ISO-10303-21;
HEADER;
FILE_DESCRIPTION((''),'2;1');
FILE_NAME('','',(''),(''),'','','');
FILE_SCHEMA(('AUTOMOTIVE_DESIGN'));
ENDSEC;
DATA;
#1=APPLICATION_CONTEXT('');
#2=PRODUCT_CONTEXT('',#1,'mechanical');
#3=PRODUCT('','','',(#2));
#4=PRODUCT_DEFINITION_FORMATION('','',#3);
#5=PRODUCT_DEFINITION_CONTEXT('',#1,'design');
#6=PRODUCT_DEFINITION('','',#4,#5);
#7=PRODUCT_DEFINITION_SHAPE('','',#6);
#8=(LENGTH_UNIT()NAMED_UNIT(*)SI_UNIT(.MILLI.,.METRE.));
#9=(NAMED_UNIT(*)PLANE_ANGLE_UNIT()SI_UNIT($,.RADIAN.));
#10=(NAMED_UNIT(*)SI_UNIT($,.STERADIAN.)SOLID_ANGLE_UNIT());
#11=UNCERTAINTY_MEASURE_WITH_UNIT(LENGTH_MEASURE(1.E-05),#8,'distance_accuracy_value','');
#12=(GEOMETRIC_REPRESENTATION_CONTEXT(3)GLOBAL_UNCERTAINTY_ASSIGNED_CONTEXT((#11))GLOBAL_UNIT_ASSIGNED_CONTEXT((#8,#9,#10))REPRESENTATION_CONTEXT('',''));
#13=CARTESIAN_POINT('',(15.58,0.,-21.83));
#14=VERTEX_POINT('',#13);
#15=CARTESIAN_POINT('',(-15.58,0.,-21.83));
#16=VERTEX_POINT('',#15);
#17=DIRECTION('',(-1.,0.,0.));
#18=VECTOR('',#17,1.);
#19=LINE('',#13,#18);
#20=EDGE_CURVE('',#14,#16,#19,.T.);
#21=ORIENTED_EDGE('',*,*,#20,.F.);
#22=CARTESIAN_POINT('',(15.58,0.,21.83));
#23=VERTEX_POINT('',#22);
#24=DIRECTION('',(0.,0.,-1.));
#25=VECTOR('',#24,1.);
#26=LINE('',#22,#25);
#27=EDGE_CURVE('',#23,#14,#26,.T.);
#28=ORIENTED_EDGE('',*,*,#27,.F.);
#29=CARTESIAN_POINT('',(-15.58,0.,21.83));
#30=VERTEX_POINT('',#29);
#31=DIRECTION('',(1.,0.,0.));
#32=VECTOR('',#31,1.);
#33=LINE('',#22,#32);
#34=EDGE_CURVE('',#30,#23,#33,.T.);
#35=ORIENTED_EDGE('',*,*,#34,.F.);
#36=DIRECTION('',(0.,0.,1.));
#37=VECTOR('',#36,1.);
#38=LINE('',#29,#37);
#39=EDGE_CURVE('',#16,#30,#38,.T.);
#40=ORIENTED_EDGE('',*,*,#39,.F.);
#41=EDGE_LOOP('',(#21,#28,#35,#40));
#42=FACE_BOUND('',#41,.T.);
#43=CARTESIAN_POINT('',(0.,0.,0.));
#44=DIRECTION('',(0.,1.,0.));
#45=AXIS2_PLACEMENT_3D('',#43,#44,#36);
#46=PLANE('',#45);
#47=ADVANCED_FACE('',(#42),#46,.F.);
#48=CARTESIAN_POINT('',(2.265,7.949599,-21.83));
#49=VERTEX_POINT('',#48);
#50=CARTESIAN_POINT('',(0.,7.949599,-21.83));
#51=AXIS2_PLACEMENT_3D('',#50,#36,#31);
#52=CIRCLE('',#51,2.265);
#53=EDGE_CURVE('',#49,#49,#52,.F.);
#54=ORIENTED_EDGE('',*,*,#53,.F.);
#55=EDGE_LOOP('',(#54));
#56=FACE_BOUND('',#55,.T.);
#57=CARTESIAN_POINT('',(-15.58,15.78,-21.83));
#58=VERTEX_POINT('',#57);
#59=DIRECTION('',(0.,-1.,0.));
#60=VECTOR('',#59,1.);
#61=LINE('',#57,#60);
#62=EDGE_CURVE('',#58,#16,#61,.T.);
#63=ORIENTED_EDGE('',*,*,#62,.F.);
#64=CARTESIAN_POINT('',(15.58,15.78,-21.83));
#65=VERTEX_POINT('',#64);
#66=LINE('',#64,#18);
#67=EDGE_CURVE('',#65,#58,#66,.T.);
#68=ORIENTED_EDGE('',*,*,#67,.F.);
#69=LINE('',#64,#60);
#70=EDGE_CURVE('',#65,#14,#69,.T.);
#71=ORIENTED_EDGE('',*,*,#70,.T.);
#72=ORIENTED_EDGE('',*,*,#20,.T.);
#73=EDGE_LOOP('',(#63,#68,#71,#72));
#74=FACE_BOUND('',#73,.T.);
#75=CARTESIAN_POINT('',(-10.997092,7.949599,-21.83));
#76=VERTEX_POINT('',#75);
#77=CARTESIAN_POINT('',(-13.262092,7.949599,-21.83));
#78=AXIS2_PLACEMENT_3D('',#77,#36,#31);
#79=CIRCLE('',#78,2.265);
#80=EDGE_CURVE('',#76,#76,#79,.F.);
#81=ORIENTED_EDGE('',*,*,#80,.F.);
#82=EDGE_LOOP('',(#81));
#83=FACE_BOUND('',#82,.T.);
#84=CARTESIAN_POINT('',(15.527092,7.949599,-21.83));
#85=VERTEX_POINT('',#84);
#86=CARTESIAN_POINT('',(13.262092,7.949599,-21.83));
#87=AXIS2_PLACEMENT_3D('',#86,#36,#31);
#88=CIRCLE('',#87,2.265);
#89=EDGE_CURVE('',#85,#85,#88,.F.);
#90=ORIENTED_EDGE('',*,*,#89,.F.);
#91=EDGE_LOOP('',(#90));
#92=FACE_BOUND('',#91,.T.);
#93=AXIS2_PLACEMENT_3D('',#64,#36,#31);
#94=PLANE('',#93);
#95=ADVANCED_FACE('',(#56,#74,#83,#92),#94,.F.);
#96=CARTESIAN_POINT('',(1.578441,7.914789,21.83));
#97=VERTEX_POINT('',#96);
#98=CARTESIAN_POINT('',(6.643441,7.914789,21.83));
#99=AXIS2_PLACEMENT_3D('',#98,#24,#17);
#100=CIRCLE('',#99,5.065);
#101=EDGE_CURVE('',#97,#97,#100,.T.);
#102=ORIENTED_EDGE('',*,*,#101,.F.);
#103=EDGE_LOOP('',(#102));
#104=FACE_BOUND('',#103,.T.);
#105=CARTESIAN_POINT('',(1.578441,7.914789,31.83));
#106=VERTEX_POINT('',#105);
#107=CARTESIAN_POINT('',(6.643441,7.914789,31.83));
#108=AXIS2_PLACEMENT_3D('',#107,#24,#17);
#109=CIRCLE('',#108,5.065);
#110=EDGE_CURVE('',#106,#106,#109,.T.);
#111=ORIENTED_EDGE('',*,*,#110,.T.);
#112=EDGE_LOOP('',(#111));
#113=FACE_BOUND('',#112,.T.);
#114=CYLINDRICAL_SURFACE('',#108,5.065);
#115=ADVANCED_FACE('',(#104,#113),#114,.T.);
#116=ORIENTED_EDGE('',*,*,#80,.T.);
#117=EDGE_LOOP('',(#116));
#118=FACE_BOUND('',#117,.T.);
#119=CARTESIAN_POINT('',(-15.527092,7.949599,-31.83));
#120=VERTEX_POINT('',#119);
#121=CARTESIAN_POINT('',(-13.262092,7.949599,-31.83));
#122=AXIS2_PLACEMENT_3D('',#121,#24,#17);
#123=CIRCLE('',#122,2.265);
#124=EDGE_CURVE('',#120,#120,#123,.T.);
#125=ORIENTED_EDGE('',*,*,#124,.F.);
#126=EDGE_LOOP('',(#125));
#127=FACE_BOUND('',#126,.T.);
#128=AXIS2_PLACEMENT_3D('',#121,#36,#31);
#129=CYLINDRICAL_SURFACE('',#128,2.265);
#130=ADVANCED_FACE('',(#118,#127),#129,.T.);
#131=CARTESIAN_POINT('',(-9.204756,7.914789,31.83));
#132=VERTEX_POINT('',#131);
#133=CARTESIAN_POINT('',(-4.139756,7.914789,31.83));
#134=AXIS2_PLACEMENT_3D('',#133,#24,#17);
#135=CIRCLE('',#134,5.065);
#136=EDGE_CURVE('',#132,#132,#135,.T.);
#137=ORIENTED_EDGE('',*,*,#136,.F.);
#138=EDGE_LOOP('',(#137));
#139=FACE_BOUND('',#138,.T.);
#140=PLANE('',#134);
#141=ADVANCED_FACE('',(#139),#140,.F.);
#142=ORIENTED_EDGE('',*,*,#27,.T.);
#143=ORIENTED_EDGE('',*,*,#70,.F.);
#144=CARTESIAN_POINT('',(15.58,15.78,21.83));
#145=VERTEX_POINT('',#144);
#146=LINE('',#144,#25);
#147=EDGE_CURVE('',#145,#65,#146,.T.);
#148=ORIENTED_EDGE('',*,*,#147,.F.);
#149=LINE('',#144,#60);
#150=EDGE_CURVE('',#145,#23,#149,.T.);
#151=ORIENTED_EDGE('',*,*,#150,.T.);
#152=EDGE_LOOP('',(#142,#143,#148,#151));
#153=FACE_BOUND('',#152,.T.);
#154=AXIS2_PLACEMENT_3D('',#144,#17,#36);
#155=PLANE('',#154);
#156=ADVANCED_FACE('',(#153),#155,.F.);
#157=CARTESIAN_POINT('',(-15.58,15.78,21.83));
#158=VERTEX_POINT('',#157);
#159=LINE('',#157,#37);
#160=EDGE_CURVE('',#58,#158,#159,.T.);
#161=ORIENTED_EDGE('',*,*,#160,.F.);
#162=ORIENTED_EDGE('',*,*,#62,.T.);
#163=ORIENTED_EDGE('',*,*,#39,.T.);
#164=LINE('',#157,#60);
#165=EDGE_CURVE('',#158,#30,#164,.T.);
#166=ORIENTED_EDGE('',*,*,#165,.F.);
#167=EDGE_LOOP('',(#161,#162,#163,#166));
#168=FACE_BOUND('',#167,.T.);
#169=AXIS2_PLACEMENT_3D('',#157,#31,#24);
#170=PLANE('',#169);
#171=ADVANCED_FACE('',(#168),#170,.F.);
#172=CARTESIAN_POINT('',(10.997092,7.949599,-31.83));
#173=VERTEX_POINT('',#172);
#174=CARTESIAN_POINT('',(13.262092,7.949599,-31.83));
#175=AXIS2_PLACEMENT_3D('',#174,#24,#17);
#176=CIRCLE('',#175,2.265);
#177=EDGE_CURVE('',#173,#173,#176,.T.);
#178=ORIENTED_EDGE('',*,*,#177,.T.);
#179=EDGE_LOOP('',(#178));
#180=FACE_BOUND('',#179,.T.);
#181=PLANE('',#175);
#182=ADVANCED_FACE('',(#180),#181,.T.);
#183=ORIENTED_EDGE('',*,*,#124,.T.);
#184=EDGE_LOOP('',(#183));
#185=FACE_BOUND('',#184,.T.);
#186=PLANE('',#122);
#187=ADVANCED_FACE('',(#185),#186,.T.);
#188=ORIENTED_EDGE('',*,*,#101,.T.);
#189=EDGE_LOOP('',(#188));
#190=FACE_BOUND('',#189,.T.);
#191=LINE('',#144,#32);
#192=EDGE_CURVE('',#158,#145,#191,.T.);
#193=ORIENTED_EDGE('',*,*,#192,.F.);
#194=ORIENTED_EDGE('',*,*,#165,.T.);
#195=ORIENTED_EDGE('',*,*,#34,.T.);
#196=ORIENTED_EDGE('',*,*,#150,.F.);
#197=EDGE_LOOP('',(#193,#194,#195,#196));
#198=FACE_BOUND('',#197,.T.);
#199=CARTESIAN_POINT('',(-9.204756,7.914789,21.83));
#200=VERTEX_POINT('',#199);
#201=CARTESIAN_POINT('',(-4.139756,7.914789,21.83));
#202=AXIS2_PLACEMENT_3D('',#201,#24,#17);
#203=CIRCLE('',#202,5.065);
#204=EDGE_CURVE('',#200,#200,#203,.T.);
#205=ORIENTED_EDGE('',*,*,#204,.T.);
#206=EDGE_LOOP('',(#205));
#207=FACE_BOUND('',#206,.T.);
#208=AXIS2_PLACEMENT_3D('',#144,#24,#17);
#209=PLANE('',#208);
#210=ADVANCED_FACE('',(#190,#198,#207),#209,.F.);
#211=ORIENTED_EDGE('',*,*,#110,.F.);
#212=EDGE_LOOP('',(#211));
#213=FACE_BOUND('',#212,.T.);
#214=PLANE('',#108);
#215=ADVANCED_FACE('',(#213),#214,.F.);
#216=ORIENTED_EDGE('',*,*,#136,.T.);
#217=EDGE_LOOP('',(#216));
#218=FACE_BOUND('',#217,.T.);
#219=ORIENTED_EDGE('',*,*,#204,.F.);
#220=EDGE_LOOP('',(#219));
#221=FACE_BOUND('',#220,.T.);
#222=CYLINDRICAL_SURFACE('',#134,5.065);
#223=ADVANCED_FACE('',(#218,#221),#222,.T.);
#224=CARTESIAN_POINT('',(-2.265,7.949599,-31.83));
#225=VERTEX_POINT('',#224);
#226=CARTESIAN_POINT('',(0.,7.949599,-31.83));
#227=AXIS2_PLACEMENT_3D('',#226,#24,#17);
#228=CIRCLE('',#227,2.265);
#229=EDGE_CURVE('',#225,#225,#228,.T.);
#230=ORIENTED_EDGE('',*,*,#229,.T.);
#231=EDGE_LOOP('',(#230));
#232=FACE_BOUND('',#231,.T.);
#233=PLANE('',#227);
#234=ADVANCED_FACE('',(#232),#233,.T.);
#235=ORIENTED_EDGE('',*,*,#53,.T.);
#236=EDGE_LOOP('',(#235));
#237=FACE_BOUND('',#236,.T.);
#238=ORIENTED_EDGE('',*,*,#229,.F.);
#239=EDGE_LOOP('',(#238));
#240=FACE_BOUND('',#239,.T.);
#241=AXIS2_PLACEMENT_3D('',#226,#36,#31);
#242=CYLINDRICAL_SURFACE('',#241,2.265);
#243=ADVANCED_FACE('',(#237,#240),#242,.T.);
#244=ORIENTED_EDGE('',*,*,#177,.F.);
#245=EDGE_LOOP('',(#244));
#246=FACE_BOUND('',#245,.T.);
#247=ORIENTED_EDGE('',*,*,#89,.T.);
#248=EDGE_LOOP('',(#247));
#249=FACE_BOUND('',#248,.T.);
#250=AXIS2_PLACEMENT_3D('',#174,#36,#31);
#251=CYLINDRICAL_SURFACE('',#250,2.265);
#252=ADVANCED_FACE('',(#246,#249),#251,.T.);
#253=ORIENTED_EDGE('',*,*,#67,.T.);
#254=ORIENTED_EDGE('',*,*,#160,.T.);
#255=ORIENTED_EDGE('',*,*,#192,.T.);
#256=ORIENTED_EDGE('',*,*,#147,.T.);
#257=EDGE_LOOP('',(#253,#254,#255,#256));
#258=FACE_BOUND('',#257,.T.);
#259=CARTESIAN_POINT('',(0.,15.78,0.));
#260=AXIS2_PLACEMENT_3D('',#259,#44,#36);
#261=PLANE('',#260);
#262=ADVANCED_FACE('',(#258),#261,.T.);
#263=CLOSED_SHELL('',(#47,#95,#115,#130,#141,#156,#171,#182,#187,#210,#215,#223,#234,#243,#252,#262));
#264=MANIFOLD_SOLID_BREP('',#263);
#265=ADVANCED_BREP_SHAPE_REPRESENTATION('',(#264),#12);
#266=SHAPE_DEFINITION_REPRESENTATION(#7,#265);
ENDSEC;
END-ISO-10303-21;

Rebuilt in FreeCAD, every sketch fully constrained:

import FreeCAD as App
import Part
import Sketcher

V = App.Vector

doc = App.newDocument("Part")
params = doc.addObject("Spreadsheet::Sheet", "Params")
for row, (alias, value) in enumerate([
    ("sketch1_width", "31.16 mm"),
    ("sketch1_height", "43.66 mm"),
    ("pad1_length", "15.78 mm"),
    ("sketch2_diameter", "10.13 mm"),
    ("pad2_length", "10 mm"),
    ("sketch3_diameter", "4.53 mm"),
    ("pad3_length", "10 mm"),
], start=1):
    params.set(f"A{row}", alias)
    params.set(f"B{row}", "=" + value)
    params.setAlias(f"B{row}", alias)

body = doc.addObject("PartDesign::Body", "Body")

# Sketch on XZ plane
sketch1 = body.newObject("Sketcher::SketchObject", "Sketch")
sketch1.AttachmentSupport = (doc.getObject("XZ_Plane"), [""])
sketch1.MapMode = "FlatFace"
sketch1.addGeometry([
    Part.LineSegment(V(-16, -22, 0), V(-16, 22, 0)),
    Part.LineSegment(V(-16, 22, 0), V(16, 22, 0)),
    Part.LineSegment(V(16, 22, 0), V(16, -22, 0)),
    Part.LineSegment(V(16, -22, 0), V(-16, -22, 0)),
], False)
sketch1.addConstraint([
    Sketcher.Constraint("Coincident", 0, 2, 1, 1),
    Sketcher.Constraint("Coincident", 1, 2, 2, 1),
    Sketcher.Constraint("Coincident", 2, 2, 3, 1),
    Sketcher.Constraint("Coincident", 3, 2, 0, 1),
    Sketcher.Constraint("Vertical", 0),
    Sketcher.Constraint("Horizontal", 1),
    Sketcher.Constraint("Vertical", 2),
    Sketcher.Constraint("Horizontal", 3),
    Sketcher.Constraint("Symmetric", 0, 2, 2, 2, -1, 1),
    Sketcher.Constraint("DistanceX", 1, 1, 1, 2, 31.16),
    Sketcher.Constraint("DistanceY", 0, 1, 0, 2, 43.66),
])
sketch1.setExpression("Constraints[9]", "Params.sketch1_width")
sketch1.setExpression("Constraints[10]", "Params.sketch1_height")
pad1 = body.newObject("PartDesign::Pad", "Pad")
pad1.Profile = sketch1
pad1.setExpression("Length", "Params.pad1_length")
pad1.Reversed = True

# Sketch on XY plane
sketch2 = body.newObject("Sketcher::SketchObject", "Sketch001")
sketch2.AttachmentSupport = (doc.getObject("XY_Plane"), [""])
sketch2.MapMode = "FlatFace"
sketch2.AttachmentOffset = App.Placement(V(0, 0, 21.83), App.Rotation())
sketch2.addGeometry([
    Part.Circle(V(-4, 8, 0), V(0, 0, 1), 5),
    Part.Circle(V(7, 8, 0), V(0, 0, 1), 5),
], False)
sketch2.addConstraint([
    Sketcher.Constraint("Equal", 0, 1),
    Sketcher.Constraint("Horizontal", 0, 3, 1, 3),
    Sketcher.Constraint("Diameter", 0, 10.13),
    Sketcher.Constraint("DistanceY", -1, 1, 0, 3, 7.914789),
    Sketcher.Constraint("DistanceX", -1, 1, 1, 3, 6.643441),
    Sketcher.Constraint("DistanceX", 0, 3, -1, 1, 4.139756),
])
sketch2.setExpression("Constraints[2]", "Params.sketch2_diameter")
pad2 = body.newObject("PartDesign::Pad", "Pad001")
pad2.Profile = sketch2
pad2.setExpression("Length", "Params.pad2_length")

# Sketch on XY plane
sketch3 = body.newObject("Sketcher::SketchObject", "Sketch002")
sketch3.AttachmentSupport = (doc.getObject("XY_Plane"), [""])
sketch3.MapMode = "FlatFace"
sketch3.AttachmentOffset = App.Placement(V(0, 0, -21.83), App.Rotation())
sketch3.addGeometry([
    Part.Circle(V(13.3, 7.9, 0), V(0, 0, 1), 2.3),
    Part.Circle(V(0, 7.9, 0), V(0, 0, 1), 2.3),
    Part.Circle(V(-13.3, 7.9, 0), V(0, 0, 1), 2.3),
], False)
sketch3.addConstraint([
    Sketcher.Constraint("Equal", 0, 1),
    Sketcher.Constraint("Equal", 1, 2),
    Sketcher.Constraint("Symmetric", 0, 3, 2, 3, -2),
    Sketcher.Constraint("PointOnObject", 1, 3, -2),
    Sketcher.Constraint("Horizontal", 0, 3, 1, 3),
    Sketcher.Constraint("Diameter", 0, 4.53),
    Sketcher.Constraint("DistanceY", -1, 1, 0, 3, 7.949599),
    Sketcher.Constraint("DistanceX", -1, 1, 0, 3, 13.262092),
])
sketch3.setExpression("Constraints[5]", "Params.sketch3_diameter")
pad3 = body.newObject("PartDesign::Pad", "Pad002")
pad3.Profile = sketch3
pad3.setExpression("Length", "Params.pad3_length")
pad3.Reversed = True

doc.recompute()
